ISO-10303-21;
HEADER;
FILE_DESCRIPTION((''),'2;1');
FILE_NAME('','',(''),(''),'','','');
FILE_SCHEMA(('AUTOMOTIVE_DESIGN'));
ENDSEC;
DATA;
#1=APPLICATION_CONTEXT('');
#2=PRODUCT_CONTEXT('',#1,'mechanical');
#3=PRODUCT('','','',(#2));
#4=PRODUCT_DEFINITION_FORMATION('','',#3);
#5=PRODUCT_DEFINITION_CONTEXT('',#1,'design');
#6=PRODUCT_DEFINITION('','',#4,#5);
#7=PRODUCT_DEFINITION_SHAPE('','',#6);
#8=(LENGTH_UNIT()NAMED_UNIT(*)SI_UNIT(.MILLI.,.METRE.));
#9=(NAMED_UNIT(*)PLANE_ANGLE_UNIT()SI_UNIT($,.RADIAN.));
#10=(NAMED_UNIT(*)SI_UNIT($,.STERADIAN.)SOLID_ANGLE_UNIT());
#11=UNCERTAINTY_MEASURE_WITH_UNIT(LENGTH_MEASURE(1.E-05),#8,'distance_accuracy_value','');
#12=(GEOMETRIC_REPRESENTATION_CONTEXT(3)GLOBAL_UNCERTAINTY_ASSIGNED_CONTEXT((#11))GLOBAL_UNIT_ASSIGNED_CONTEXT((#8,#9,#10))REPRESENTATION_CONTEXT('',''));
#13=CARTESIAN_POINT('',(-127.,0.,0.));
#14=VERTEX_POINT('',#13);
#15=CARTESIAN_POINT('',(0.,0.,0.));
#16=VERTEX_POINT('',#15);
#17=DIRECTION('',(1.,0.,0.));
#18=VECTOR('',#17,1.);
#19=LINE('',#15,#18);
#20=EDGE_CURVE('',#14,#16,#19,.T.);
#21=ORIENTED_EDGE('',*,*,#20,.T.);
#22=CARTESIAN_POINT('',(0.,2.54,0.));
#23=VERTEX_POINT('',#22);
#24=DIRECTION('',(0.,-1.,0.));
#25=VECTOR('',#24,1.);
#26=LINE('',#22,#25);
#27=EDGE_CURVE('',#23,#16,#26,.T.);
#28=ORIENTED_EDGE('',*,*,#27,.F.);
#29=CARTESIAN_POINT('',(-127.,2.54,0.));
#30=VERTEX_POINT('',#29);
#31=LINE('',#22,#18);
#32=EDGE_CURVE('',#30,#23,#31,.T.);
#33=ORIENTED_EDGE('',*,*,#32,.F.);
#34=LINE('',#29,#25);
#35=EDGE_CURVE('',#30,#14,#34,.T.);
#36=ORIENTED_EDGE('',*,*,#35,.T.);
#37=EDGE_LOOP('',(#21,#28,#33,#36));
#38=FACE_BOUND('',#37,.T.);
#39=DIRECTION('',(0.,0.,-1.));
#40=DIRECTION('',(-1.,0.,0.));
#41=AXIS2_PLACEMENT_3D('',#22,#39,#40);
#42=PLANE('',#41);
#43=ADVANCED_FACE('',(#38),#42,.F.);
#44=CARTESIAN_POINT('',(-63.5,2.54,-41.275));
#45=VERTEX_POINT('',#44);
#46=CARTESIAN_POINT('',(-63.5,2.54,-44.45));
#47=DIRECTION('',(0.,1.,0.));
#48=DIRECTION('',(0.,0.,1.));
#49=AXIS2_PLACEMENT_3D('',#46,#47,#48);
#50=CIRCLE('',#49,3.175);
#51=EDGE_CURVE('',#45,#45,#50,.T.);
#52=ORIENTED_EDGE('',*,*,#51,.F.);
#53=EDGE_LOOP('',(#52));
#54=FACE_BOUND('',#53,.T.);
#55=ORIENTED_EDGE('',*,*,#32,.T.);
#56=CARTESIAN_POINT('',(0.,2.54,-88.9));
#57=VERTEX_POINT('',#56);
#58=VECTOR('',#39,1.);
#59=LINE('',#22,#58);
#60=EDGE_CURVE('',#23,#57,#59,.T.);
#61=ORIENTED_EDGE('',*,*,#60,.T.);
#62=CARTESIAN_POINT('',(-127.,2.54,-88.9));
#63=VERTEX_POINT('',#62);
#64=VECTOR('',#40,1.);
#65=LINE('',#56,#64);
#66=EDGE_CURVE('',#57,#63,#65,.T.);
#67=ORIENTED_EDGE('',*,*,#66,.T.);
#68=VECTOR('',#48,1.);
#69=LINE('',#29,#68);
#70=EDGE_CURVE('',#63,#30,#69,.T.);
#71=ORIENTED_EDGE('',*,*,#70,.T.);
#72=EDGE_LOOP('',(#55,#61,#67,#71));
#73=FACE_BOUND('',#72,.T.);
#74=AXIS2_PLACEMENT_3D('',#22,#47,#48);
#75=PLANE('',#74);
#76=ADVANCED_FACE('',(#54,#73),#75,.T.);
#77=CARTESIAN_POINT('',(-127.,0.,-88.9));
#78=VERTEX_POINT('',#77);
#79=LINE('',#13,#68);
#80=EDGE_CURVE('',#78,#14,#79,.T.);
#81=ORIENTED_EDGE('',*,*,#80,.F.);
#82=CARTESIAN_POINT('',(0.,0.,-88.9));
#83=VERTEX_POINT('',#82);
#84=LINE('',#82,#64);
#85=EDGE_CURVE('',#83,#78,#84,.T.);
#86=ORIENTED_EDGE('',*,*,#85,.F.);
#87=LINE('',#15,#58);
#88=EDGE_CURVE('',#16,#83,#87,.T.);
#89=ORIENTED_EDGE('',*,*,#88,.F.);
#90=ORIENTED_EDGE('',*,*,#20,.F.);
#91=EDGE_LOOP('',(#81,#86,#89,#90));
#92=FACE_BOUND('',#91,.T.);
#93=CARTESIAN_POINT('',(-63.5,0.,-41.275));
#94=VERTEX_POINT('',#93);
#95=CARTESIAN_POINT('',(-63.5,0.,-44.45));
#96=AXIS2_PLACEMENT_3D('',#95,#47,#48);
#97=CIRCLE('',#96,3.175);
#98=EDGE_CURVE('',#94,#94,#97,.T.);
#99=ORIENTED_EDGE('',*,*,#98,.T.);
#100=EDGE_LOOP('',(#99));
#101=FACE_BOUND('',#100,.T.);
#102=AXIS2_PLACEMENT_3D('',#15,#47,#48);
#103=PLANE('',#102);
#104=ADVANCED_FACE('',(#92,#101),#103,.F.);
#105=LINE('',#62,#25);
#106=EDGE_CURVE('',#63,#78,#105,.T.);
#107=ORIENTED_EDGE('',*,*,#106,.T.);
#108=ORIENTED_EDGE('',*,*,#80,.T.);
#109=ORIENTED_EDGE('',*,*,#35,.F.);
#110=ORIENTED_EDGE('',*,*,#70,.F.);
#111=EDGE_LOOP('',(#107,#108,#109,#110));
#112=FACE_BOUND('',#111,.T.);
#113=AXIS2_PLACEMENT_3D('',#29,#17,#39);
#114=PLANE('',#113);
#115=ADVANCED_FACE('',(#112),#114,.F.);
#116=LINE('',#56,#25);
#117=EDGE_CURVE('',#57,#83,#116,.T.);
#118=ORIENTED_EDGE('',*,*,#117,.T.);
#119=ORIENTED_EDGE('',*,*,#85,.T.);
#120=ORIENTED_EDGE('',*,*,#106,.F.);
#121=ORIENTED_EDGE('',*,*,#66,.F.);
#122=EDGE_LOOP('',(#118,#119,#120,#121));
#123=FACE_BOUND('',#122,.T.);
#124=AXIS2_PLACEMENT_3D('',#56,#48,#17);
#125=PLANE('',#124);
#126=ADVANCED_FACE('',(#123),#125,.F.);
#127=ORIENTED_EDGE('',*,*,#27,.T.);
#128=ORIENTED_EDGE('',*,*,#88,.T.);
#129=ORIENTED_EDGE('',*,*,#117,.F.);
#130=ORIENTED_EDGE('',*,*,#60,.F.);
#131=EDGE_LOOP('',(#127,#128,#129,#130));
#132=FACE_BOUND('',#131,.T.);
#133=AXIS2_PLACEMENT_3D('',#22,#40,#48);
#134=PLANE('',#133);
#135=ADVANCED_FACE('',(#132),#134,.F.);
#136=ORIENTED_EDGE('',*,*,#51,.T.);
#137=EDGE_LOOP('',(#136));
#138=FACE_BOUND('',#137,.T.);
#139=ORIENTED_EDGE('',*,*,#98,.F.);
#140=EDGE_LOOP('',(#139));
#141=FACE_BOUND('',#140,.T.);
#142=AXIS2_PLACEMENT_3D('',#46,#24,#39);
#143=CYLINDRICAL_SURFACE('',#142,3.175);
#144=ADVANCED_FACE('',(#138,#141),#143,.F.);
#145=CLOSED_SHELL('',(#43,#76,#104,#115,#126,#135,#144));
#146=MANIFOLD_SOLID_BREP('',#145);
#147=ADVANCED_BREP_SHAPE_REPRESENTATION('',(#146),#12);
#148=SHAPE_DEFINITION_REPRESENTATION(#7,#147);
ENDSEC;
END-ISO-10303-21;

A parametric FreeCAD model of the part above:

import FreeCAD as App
import Part
import Sketcher

V = App.Vector
Q = App.Units.Quantity


def add_polygon(sketch, points):
    """Adds a closed chain of lines whose ends are joined by coincident constraints."""
    first, n = sketch.GeometryCount, len(points)
    for a, b in zip(points, points[1:] + points[:1]):
        sketch.addGeometry(Part.LineSegment(App.Vector(*a, 0), App.Vector(*b, 0)), False)
    for i in range(n):
        sketch.addConstraint(Sketcher.Constraint("Coincident", first + i, 2, first + (i + 1) % n, 1))

doc = App.newDocument("Part")
body = doc.addObject("PartDesign::Body", "Body")

# Sketch on XZ plane
sketch1 = body.newObject("Sketcher::SketchObject", "Sketch")
sketch1.AttachmentSupport = (doc.getObject("XZ_Plane"), [""])
sketch1.MapMode = "FlatFace"
add_polygon(sketch1, [(-127, -88.9), (-127, 0), (0, 0), (0, -88.9)])  # lines 0-3
sketch1.addGeometry(Part.Circle(V(-63.5, -44.45, 0), V(0, 0, 1), 3.175), False)  # 4
sketch1.addConstraint([
    Sketcher.Constraint("Vertical", 0),
    Sketcher.Constraint("Horizontal", 1),
    Sketcher.Constraint("Vertical", 2),
    Sketcher.Constraint("Horizontal", 3),
    Sketcher.Constraint("Coincident", 1, 2, -1, 1),
    Sketcher.Constraint("Diameter", 4, Q("0.25 in")),
    Sketcher.Constraint("DistanceX", 1, 1, 1, 2, Q("5 in")),
    Sketcher.Constraint("DistanceY", 0, 1, 0, 2, Q("3.5 in")),
    Sketcher.Constraint("DistanceX", 4, 3, -1, 1, Q("2.5 in")),
    Sketcher.Constraint("DistanceY", 4, 3, -1, 1, Q("1.75 in")),
])
pad1 = body.newObject("PartDesign::Pad", "Pad")
pad1.Profile = sketch1
pad1.Length = Q("0.1 in")
pad1.Reversed = True

doc.recompute()
